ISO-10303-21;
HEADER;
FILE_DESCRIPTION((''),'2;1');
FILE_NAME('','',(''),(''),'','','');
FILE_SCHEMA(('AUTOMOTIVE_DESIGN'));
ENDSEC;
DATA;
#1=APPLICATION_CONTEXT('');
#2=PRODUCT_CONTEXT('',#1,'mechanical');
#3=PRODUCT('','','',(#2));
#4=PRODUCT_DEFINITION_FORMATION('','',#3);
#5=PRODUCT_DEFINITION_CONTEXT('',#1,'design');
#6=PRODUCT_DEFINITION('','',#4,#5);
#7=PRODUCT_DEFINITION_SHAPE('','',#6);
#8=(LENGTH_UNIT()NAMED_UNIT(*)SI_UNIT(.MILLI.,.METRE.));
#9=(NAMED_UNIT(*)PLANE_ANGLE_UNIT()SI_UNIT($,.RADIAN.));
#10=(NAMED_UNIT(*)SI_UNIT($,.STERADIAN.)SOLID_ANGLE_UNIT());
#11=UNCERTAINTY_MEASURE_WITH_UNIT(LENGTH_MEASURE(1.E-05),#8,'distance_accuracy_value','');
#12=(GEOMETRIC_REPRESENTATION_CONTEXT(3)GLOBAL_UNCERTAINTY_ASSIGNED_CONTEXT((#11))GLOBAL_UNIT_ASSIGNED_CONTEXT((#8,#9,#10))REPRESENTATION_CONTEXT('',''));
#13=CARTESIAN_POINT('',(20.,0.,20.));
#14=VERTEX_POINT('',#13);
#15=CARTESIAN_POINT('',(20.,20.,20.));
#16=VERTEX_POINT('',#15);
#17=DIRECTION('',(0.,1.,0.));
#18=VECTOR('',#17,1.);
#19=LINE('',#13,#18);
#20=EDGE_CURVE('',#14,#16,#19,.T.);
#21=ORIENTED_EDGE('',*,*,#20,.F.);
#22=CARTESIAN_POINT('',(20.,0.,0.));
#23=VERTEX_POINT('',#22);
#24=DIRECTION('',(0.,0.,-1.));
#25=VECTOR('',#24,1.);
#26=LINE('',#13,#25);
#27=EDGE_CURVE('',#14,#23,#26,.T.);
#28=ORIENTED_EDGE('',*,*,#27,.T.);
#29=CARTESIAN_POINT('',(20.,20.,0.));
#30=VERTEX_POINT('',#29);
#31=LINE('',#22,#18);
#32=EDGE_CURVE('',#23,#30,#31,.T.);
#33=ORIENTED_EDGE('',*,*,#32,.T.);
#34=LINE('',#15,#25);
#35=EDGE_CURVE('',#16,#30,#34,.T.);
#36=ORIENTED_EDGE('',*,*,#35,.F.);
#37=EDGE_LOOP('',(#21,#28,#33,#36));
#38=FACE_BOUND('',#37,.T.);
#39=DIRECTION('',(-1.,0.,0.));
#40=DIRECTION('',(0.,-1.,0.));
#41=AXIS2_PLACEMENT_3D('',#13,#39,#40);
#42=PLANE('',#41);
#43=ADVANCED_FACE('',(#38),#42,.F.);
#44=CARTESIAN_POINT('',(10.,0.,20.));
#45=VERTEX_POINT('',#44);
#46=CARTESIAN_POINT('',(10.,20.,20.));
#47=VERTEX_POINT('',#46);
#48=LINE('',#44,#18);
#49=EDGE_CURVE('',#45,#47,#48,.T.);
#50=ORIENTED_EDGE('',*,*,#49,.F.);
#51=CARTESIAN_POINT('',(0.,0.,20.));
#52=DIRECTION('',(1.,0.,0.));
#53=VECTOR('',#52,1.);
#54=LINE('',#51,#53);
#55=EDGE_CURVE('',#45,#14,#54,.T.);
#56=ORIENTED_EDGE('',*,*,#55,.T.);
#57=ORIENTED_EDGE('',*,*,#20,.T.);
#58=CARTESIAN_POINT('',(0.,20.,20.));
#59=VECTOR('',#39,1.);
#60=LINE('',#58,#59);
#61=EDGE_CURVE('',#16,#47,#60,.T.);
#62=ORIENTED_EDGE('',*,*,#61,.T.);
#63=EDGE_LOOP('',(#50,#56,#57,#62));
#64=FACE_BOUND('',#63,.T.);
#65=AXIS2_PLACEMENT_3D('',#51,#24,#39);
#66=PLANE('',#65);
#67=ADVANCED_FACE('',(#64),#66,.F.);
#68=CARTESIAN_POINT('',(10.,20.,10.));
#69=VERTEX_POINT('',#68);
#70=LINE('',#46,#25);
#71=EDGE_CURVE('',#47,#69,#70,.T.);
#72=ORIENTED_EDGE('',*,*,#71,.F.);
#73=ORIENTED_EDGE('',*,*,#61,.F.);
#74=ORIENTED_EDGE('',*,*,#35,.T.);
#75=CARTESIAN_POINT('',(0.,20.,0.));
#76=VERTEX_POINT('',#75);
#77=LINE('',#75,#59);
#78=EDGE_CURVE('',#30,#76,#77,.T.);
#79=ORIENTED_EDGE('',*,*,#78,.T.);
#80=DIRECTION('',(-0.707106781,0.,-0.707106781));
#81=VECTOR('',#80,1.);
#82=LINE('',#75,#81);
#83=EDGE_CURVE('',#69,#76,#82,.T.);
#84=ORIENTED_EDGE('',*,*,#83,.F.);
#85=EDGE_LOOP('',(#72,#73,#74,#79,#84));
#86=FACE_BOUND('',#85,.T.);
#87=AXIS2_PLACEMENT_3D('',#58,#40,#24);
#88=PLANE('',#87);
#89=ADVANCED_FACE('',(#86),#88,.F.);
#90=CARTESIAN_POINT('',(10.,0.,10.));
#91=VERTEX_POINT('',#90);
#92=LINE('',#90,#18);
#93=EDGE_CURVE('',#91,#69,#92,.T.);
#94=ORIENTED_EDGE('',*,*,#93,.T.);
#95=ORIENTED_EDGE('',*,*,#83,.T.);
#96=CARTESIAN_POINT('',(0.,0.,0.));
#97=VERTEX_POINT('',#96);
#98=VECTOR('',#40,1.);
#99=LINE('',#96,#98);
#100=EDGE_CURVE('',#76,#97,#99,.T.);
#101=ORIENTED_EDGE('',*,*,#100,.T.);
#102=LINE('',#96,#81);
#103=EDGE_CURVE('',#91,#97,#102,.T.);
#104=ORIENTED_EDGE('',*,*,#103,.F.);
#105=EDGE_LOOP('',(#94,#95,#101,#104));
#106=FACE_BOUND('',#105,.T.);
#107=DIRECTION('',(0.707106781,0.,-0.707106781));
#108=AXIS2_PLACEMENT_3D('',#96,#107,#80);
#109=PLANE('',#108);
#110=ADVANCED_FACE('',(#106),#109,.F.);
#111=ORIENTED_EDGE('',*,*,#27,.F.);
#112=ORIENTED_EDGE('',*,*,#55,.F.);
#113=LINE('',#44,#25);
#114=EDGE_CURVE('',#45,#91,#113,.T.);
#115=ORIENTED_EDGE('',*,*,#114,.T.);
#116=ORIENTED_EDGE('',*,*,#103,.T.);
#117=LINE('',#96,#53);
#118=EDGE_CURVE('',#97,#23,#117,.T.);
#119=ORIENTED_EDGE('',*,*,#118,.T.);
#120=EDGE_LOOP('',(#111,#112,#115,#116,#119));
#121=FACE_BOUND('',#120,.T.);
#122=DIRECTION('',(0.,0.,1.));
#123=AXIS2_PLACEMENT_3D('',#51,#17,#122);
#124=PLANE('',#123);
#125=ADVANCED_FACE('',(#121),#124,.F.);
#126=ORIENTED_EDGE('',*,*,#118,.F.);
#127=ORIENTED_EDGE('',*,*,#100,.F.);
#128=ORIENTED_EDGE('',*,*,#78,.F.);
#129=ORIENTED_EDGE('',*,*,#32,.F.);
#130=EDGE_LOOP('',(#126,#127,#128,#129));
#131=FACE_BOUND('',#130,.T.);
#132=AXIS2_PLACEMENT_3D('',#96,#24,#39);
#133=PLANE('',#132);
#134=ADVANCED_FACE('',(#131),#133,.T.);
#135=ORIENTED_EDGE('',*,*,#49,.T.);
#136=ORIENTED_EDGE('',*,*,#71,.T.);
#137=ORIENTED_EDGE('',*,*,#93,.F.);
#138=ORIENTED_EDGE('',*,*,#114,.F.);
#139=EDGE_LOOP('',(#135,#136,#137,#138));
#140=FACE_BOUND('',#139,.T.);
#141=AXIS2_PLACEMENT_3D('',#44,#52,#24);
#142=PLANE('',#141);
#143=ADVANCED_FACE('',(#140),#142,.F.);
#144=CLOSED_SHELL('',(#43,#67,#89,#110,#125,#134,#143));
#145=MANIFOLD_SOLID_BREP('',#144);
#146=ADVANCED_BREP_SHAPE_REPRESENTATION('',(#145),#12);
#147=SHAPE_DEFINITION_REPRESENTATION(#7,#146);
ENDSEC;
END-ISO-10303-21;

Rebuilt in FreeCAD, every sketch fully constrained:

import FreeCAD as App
import Part
import Sketcher
from FreeCAD import Vector
Q = App.Units.Quantity

doc = App.newDocument("Part")
body = doc.addObject("PartDesign::Body", "Body")

sketch1 = body.newObject("Sketcher::SketchObject", "Sketch")
sketch1.AttachmentSupport = (doc.getObject("XY_Plane"), [""])
sketch1.MapMode = "FlatFace"
sketch1.addGeometry([
    Part.LineSegment(Vector(0, 20, 0), Vector(0, 0, 0)),
    Part.LineSegment(Vector(0, 0, 0), Vector(20, 0, 0)),
    Part.LineSegment(Vector(20, 0, 0), Vector(20, 20, 0)),
    Part.LineSegment(Vector(20, 20, 0), Vector(0, 20, 0)),
], False)
sketch1.addConstraint([
    Sketcher.Constraint("Coincident", 0, 2, 1, 1),
    Sketcher.Constraint("Coincident", 1, 2, 2, 1),
    Sketcher.Constraint("Coincident", 2, 2, 3, 1),
    Sketcher.Constraint("Coincident", 3, 2, 0, 1),
    Sketcher.Constraint("Vertical", 0),
    Sketcher.Constraint("Horizontal", 1),
    Sketcher.Constraint("Vertical", 2),
    Sketcher.Constraint("Horizontal", 3),
    Sketcher.Constraint("Coincident", 0, 2, -1, 1),
    Sketcher.Constraint("Equal", 3, 0),
    Sketcher.Constraint("DistanceX", 1, 1, 1, 2, Q("20 mm")),
])
pad1 = body.newObject("PartDesign::Pad", "Pad")
pad1.Profile = sketch1
pad1.Length = 20

sketch2 = body.newObject("Sketcher::SketchObject", "Sketch001")
sketch2.AttachmentSupport = (doc.getObject("XZ_Plane"), [""])
sketch2.MapMode = "FlatFace"
sketch2.AttachmentOffset = App.Placement(Vector(0, 0, -20), App.Rotation())
sketch2.addGeometry([
    Part.LineSegment(Vector(0, 10, 0), Vector(0, 20, 0)),
    Part.LineSegment(Vector(0, 20, 0), Vector(10, 20, 0)),
    Part.LineSegment(Vector(10, 20, 0), Vector(10, 10, 0)),
    Part.LineSegment(Vector(10, 10, 0), Vector(0, 10, 0)),
], False)
sketch2.addConstraint([
    Sketcher.Constraint("Coincident", 0, 2, 1, 1),
    Sketcher.Constraint("Coincident", 1, 2, 2, 1),
    Sketcher.Constraint("Coincident", 2, 2, 3, 1),
    Sketcher.Constraint("Coincident", 3, 2, 0, 1),
    Sketcher.Constraint("Vertical", 0),
    Sketcher.Constraint("Horizontal", 1),
    Sketcher.Constraint("Vertical", 2),
    Sketcher.Constraint("Horizontal", 3),
    Sketcher.Constraint("PointOnObject", 0, 2, -2),
    Sketcher.Constraint("Equal", 3, 0),
    Sketcher.Constraint("DistanceX", 1, 1, 1, 2, Q("10 mm")),
    Sketcher.Constraint("DistanceY", -1, 1, 0, 2, Q("20 mm")),
])
pocket1 = body.newObject("PartDesign::Pocket", "Pocket")
pocket1.Profile = sketch2
pocket1.Length = 20
pocket1.Reversed = True

sketch3 = body.newObject("Sketcher::SketchObject", "Sketch002")
sketch3.AttachmentSupport = (doc.getObject("XZ_Plane"), [""])
sketch3.MapMode = "FlatFace"
sketch3.AttachmentOffset = App.Placement(Vector(0, 0, -20), App.Rotation())
sketch3.addGeometry([
    Part.LineSegment(Vector(10, 10, 0), Vector(0, 0, 0)),
    Part.LineSegment(Vector(0, 0, 0), Vector(0, 10, 0)),
    Part.LineSegment(Vector(0, 10, 0), Vector(10, 10, 0)),
], False)
sketch3.addConstraint([
    Sketcher.Constraint("Coincident", 0, 2, 1, 1),
    Sketcher.Constraint("Coincident", 1, 2, 2, 1),
    Sketcher.Constraint("Coincident", 2, 2, 0, 1),
    Sketcher.Constraint("Vertical", 1),
    Sketcher.Constraint("Horizontal", 2),
    Sketcher.Constraint("Coincident", 0, 2, -1, 1),
    Sketcher.Constraint("Equal", 2, 1),
    Sketcher.Constraint("DistanceX", 2, 1, 2, 2, Q("10 mm")),
])
pocket2 = body.newObject("PartDesign::Pocket", "Pocket001")
pocket2.Profile = sketch3
pocket2.Length = 20
pocket2.Reversed = True

doc.recompute()
